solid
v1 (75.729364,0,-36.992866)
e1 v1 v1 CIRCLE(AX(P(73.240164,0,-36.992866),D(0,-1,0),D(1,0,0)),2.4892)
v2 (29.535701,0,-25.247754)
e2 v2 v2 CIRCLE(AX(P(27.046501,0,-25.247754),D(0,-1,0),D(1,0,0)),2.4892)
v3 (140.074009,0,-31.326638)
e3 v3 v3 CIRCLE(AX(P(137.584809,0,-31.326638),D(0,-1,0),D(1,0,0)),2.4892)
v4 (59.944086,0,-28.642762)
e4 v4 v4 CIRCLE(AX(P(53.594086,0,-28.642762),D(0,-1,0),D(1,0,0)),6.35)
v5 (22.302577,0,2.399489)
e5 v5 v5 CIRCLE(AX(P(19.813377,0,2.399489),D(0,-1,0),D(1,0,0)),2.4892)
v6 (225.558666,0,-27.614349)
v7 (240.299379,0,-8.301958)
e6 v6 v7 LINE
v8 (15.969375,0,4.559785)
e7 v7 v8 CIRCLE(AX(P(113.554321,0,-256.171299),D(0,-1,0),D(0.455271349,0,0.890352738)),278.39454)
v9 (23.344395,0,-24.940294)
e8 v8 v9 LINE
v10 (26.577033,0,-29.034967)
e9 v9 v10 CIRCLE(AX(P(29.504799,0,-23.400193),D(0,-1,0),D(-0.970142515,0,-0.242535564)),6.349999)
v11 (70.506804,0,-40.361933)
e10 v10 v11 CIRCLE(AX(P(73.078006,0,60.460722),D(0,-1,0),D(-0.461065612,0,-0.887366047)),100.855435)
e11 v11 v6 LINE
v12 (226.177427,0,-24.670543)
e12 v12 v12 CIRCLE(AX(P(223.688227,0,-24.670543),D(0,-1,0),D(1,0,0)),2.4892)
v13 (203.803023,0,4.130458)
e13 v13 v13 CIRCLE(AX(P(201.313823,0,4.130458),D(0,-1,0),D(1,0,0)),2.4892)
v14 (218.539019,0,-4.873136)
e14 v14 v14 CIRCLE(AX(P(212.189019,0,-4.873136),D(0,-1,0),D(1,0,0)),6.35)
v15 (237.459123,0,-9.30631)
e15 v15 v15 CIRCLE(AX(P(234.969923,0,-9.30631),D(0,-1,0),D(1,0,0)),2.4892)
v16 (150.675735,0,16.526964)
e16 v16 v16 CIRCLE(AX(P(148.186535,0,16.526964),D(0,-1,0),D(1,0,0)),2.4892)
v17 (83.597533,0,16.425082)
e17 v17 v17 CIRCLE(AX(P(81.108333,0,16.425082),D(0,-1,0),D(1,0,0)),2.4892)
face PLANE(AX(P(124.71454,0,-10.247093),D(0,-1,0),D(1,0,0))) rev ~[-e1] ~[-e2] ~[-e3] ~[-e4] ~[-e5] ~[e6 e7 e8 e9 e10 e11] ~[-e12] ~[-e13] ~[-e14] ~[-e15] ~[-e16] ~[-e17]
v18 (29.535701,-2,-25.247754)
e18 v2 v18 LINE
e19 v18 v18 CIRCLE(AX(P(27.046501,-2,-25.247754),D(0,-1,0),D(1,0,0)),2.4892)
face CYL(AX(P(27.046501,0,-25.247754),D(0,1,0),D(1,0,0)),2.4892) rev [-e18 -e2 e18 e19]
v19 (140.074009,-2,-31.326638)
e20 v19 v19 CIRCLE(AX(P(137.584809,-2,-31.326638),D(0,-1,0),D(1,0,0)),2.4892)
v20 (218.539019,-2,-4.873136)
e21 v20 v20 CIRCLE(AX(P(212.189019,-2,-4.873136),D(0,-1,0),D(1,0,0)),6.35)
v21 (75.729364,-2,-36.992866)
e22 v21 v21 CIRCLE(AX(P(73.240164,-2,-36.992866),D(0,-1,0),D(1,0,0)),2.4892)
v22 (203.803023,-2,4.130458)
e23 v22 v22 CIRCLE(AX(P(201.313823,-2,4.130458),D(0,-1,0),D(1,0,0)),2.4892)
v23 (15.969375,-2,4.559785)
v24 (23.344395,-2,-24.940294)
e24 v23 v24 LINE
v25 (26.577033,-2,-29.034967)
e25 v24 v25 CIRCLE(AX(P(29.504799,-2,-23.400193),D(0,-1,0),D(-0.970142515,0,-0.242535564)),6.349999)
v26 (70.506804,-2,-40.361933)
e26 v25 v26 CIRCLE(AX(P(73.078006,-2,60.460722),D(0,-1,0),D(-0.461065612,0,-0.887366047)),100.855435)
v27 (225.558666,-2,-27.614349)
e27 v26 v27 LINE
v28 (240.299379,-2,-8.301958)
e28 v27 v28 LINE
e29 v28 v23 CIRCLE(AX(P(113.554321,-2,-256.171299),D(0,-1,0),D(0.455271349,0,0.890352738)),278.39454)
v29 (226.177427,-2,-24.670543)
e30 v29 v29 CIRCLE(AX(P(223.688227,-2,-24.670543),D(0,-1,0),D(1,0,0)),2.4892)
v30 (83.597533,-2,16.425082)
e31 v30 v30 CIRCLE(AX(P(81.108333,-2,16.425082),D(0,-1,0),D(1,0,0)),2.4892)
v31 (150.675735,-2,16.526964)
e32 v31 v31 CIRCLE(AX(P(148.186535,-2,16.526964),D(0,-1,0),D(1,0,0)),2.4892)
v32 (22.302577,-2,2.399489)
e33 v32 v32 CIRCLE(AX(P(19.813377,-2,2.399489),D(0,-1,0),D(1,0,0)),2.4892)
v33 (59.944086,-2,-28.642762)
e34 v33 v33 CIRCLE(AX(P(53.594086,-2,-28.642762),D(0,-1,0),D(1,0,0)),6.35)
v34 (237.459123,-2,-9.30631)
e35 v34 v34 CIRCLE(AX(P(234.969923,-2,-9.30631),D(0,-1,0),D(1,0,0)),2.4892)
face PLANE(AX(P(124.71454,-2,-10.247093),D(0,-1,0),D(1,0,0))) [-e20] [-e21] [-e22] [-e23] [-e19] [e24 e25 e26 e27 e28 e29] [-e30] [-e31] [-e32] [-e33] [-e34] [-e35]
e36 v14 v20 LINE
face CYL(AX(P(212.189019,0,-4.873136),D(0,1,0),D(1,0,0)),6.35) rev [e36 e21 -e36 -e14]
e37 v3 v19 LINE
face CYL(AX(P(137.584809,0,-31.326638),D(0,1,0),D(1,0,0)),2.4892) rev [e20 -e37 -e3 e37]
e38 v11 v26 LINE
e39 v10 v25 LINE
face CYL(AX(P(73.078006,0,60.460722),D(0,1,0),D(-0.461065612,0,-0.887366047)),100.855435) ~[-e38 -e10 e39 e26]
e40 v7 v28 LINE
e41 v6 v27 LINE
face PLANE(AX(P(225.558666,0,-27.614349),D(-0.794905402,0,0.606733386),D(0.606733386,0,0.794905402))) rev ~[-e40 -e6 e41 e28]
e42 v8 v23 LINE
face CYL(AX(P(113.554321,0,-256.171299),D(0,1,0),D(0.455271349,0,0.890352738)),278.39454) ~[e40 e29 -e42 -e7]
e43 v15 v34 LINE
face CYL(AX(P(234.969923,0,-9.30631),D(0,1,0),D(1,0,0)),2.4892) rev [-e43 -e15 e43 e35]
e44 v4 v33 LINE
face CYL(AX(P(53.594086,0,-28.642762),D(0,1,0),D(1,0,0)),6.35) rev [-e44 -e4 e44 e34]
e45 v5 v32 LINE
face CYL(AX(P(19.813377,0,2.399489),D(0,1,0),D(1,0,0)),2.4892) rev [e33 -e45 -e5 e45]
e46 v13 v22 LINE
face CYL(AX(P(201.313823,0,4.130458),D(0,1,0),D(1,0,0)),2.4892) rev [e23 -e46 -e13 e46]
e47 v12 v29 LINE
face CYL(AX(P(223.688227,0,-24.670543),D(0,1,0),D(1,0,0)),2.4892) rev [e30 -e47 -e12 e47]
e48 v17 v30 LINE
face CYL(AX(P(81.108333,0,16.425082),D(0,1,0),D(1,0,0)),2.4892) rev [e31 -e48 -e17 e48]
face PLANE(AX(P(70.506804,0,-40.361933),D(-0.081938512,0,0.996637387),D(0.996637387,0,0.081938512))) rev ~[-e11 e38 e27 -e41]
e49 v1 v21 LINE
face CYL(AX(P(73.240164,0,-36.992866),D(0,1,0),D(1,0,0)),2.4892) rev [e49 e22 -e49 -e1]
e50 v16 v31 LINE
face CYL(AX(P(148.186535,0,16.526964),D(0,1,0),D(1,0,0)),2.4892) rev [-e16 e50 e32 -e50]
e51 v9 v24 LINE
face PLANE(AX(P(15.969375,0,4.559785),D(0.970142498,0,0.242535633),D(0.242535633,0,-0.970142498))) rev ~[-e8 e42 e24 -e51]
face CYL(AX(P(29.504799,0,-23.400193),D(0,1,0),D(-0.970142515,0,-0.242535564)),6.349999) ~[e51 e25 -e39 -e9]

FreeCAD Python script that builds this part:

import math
import FreeCAD as App
import Part
import Sketcher

V = App.Vector
Q = App.Units.Quantity

doc = App.newDocument("Part")
body = doc.addObject("PartDesign::Body", "Body")

# Sketch on XZ plane
sketch1 = doc.addObject("Sketcher::SketchObject", "Sketch")
body.addObject(sketch1)
sketch1.AttachmentSupport = (doc.XZ_Plane, [""])
sketch1.MapMode = "FlatFace"
sketch1.addGeometry(Part.ArcOfCircle(Part.Circle(V(113.6, -256.2, 0), V(0, 0, 1), 278.4), math.radians(63), math.radians(111)), False)
sketch1.addGeometry(Part.LineSegment(V(16, 4.6, 0), V(23.3, -24.9, 0)), False)
sketch1.addGeometry(Part.ArcOfCircle(Part.Circle(V(29.5, -23.4, 0), V(0, 0, 1), 6.3), math.radians(-166), math.radians(-117)), False)
sketch1.addGeometry(Part.ArcOfCircle(Part.Circle(V(73.1, 60.5, 0), V(0, 0, 1), 100.9), math.radians(-117), math.radians(-91)), False)
sketch1.addGeometry(Part.LineSegment(V(70.5, -40.4, 0), V(225.6, -27.6, 0)), False)
sketch1.addGeometry(Part.LineSegment(V(225.6, -27.6, 0), V(240.3, -8.3, 0)), False)
sketch1.addGeometry(Part.Circle(V(27, -25.2, 0), V(0, 0, 1), 2.5), False)
sketch1.addGeometry(Part.Circle(V(53.6, -28.6, 0), V(0, 0, 1), 6.3), False)
sketch1.addGeometry(Part.Circle(V(73.2, -37, 0), V(0, 0, 1), 2.5), False)
sketch1.addGeometry(Part.Circle(V(137.6, -31.3, 0), V(0, 0, 1), 2.5), False)
sketch1.addGeometry(Part.Circle(V(223.7, -24.7, 0), V(0, 0, 1), 2.5), False)
sketch1.addGeometry(Part.Circle(V(19.8, 2.4, 0), V(0, 0, 1), 2.5), False)
sketch1.addGeometry(Part.Circle(V(81.1, 16.4, 0), V(0, 0, 1), 2.5), False)
sketch1.addGeometry(Part.Circle(V(235, -9.3, 0), V(0, 0, 1), 2.5), False)
sketch1.addGeometry(Part.Circle(V(212.2, -4.9, 0), V(0, 0, 1), 6.3), False)
sketch1.addGeometry(Part.Circle(V(201.3, 4.1, 0), V(0, 0, 1), 2.5), False)
sketch1.addGeometry(Part.Circle(V(148.2, 16.5, 0), V(0, 0, 1), 2.5), False)
sketch1.addConstraint(Sketcher.Constraint("Coincident", 0, 2, 1, 1))
sketch1.addConstraint(Sketcher.Constraint("Tangent", 1, 2, 2, 1))
sketch1.addConstraint(Sketcher.Constraint("Tangent", 2, 2, 3, 1))
sketch1.addConstraint(Sketcher.Constraint("Coincident", 3, 2, 4, 1))
sketch1.addConstraint(Sketcher.Constraint("Coincident", 4, 2, 5, 1))
sketch1.addConstraint(Sketcher.Constraint("Coincident", 5, 2, 0, 1))
sketch1.addConstraint(Sketcher.Constraint("Equal", 2, 7))
sketch1.addConstraint(Sketcher.Constraint("Equal", 6, 8))
sketch1.addConstraint(Sketcher.Constraint("Equal", 8, 9))
sketch1.addConstraint(Sketcher.Constraint("Equal", 9, 10))
sketch1.addConstraint(Sketcher.Constraint("Equal", 10, 11))
sketch1.addConstraint(Sketcher.Constraint("Equal", 11, 12))
sketch1.addConstraint(Sketcher.Constraint("Equal", 12, 13))
sketch1.addConstraint(Sketcher.Constraint("Equal", 7, 14))
sketch1.addConstraint(Sketcher.Constraint("Equal", 13, 15))
sketch1.addConstraint(Sketcher.Constraint("Equal", 15, 16))
sketch1.addConstraint(Sketcher.Constraint("Diameter", 7, Q("0.5 in")))
sketch1.addConstraint(Sketcher.Constraint("Diameter", 6, Q("0.196 in")))
sketch1.addConstraint(Sketcher.Constraint("Angle", 4, Q("4.7 deg")))
sketch1.addConstraint(Sketcher.Constraint("Distance", 4, Q("6.125 in")))
sketch1.addConstraint(Sketcher.Constraint("Radius", 0, 278.39454))
sketch1.addConstraint(Sketcher.Constraint("DistanceY", 9, 3, 16, 3, Q("1.8840001 in")))
sketch1.addConstraint(Sketcher.Constraint("Radius", 3, 100.855435))
sketch1.addConstraint(Sketcher.Constraint("DistanceY", 0, 3, -1, 1, 256.171299))
sketch1.addConstraint(Sketcher.Constraint("DistanceX", -1, 1, 2, 3, 29.504799))
sketch1.addConstraint(Sketcher.Constraint("DistanceX", -1, 1, 6, 3, 27.046501))
sketch1.addConstraint(Sketcher.Constraint("DistanceX", 15, 3, 13, 3, 33.6561))
sketch1.addConstraint(Sketcher.Constraint("DistanceY", 10, 3, 15, 3, 28.801001))
sketch1.addConstraint(Sketcher.Constraint("DistanceX", 12, 3, 16, 3, 67.078202))
sketch1.addConstraint(Sketcher.Constraint("DistanceY", 14, 3, 16, 3, 21.4001))
sketch1.addConstraint(Sketcher.Constraint("DistanceY", 1, 2, 2, 3, 1.540101))
sketch1.addConstraint(Sketcher.Constraint("DistanceX", -1, 1, 0, 3, 113.554321))
sketch1.addConstraint(Sketcher.Constraint("DistanceX", -1, 1, 9, 3, 137.584809))
sketch1.addConstraint(Sketcher.Constraint("DistanceY", -1, 1, 11, 3, 2.399489))
sketch1.addConstraint(Sketcher.Constraint("DistanceY", -1, 1, 12, 3, 16.425082))
sketch1.addConstraint(Sketcher.Constraint("DistanceY", 13, 3, -1, 1, 9.30631))
sketch1.addConstraint(Sketcher.Constraint("DistanceX", -1, 1, 14, 3, 212.189019))
sketch1.addConstraint(Sketcher.Constraint("DistanceY", 4, 2, -1, 1, 27.614349))
sketch1.addConstraint(Sketcher.Constraint("DistanceX", -1, 1, 5, 2, 240.299379))
sketch1.addConstraint(Sketcher.Constraint("DistanceY", 0, 3, 3, 3, 316.632021))
sketch1.addConstraint(Sketcher.Constraint("DistanceY", 6, 3, 2, 3, 1.847561))
sketch1.addConstraint(Sketcher.Constraint("DistanceY", 7, 3, 2, 3, 5.242569))
sketch1.addConstraint(Sketcher.Constraint("DistanceX", 7, 3, 3, 3, 19.48392))
sketch1.addConstraint(Sketcher.Constraint("DistanceY", 8, 3, 6, 3, 11.745112))
sketch1.addConstraint(Sketcher.Constraint("DistanceY", 8, 3, 3, 3, 97.453588))
sketch1.addConstraint(Sketcher.Constraint("DistanceY", 8, 3, 9, 3, 5.666228))
sketch1.addConstraint(Sketcher.Constraint("DistanceX", 9, 3, 10, 3, 86.103418))
sketch1.addConstraint(Sketcher.Constraint("DistanceY", 7, 3, 10, 3, 3.972219))
sketch1.addConstraint(Sketcher.Constraint("DistanceX", 11, 3, 2, 3, 9.691422))
sketch1.addConstraint(Sketcher.Constraint("DistanceX", 8, 3, 12, 3, 7.868169))
sketch1.addConstraint(Sketcher.Constraint("DistanceX", 12, 3, 13, 3, 153.86159))
sketch1.addConstraint(Sketcher.Constraint("DistanceX", 3, 2, 8, 3, 2.73336))
pad1 = doc.addObject("PartDesign::Pad", "Pad")
body.addObject(pad1)
pad1.Profile = sketch1
pad1.Length = 2

doc.recompute()
